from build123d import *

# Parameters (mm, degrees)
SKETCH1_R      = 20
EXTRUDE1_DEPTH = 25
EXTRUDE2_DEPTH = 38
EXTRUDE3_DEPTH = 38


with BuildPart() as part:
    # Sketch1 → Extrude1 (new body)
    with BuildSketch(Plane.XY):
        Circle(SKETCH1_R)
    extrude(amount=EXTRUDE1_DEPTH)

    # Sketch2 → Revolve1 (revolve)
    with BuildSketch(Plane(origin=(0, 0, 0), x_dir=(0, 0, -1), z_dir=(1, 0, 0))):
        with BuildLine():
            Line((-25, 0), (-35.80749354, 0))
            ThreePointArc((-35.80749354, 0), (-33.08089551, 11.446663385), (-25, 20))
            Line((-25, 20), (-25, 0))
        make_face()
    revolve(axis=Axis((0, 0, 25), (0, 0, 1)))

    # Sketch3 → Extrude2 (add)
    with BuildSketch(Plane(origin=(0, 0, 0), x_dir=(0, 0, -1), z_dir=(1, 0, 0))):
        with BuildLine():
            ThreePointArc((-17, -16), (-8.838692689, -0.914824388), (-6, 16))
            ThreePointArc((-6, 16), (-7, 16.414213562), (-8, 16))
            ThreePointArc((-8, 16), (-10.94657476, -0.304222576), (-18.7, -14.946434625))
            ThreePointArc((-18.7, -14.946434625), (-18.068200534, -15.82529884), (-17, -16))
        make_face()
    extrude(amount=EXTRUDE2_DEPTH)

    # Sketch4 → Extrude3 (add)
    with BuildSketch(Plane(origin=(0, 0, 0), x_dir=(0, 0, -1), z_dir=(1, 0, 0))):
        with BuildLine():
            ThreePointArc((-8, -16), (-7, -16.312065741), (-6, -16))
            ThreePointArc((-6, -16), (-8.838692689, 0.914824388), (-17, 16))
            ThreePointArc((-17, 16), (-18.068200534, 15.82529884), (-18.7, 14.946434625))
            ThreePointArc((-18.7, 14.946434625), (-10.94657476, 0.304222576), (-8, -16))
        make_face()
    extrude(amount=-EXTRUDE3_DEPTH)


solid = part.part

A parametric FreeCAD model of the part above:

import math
import FreeCAD as App
import Part
import Sketcher

doc = App.newDocument("Part")
params = doc.addObject("Spreadsheet::Sheet", "Params")
for row, (alias, value) in enumerate([
    ("sketch1_diameter", "40 mm"),
    ("pad1_length", "25 mm"),
    ("sketch2_width", "20 mm"),
    ("revolution_angle", "360 deg"),
    ("pad2_length", "38 mm"),
    ("pad3_length", "38 mm"),
], start=1):
    params.set(f"A{row}", alias)
    params.set(f"B{row}", "=" + value)
    params.setAlias(f"B{row}", alias)

body = doc.addObject("PartDesign::Body", "Body")

sketch1 = body.newObject("Sketcher::SketchObject", "Sketch")
sketch1.AttachmentSupport = (doc.getObject("XY_Plane"), [""])
sketch1.MapMode = "FlatFace"
sketch1.addGeometry(Part.Circle(App.Vector(0, 0, 0), App.Vector(0, 0, 1), 20), False)
sketch1.addConstraint([
    Sketcher.Constraint("Coincident", 0, 3, -1, 1),
    Sketcher.Constraint("Diameter", 0, 40.0),
])
sketch1.setExpression("Constraints[1]", "Params.sketch1_diameter")
pad1 = body.newObject("PartDesign::Pad", "Pad")
pad1.Profile = sketch1
pad1.setExpression("Length", "Params.pad1_length")

sketch2 = body.newObject("Sketcher::SketchObject", "Sketch001")
sketch2.AttachmentSupport = (doc.getObject("YZ_Plane"), [""])
sketch2.MapMode = "FlatFace"
sketch2.addGeometry([
    Part.LineSegment(App.Vector(0, 36, 0), App.Vector(0, 25, 0)),
    Part.LineSegment(App.Vector(0, 25, 0), App.Vector(20, 25, 0)),
    Part.ArcOfCircle(Part.Circle(App.Vector(1, 13, 0), App.Vector(0, 0, 1), 23), math.radians(32), math.radians(92)),
], False)
sketch2.addConstraint([
    Sketcher.Constraint("Coincident", 0, 2, 1, 1),
    Sketcher.Constraint("Coincident", 1, 2, 2, 1),
    Sketcher.Constraint("Coincident", 2, 2, 0, 1),
    Sketcher.Constraint("Vertical", 0),
    Sketcher.Constraint("Horizontal", 1),
    Sketcher.Constraint("PointOnObject", 0, 2, -2),
    Sketcher.Constraint("DistanceX", 1, 1, 1, 2, 20.0),
    Sketcher.Constraint("DistanceY", -1, 1, 0, 2, 25.0),
    Sketcher.Constraint("Radius", 2, 22.750511),
    Sketcher.Constraint("DistanceY", 0, 2, 0, 1, 10.807494),
])
sketch2.setExpression("Constraints[6]", "Params.sketch2_width")
revolution = body.newObject("PartDesign::Revolution", "Revolution")
revolution.Profile = sketch2
revolution.ReferenceAxis = (sketch2, ["V_Axis"])
revolution.setExpression("Angle", "Params.revolution_angle")

sketch3 = body.newObject("Sketcher::SketchObject", "Sketch002")
sketch3.AttachmentSupport = (doc.getObject("YZ_Plane"), [""])
sketch3.MapMode = "FlatFace"
sketch3.addGeometry([
    Part.ArcOfCircle(Part.Circle(App.Vector(16.1, 58.3, 0), App.Vector(0, 0, 1), 52.3), math.radians(-128), math.radians(-90)),
    Part.ArcOfCircle(Part.Circle(App.Vector(15, 7, 0), App.Vector(0, 0, 1), 1.4), math.radians(-45), math.radians(45)),
    Part.ArcOfCircle(Part.Circle(App.Vector(17.3, 62, 0), App.Vector(0, 0, 1), 54), math.radians(-127), math.radians(-91)),
    Part.ArcOfCircle(Part.Circle(App.Vector(-14.6, 17.3, 0), App.Vector(0, 0, 1), 1.4), math.radians(103), math.radians(193)),
], False)
sketch3.addConstraint([
    Sketcher.Constraint("Coincident", 0, 2, 1, 1),
    Sketcher.Constraint("Coincident", 1, 2, 2, 2),
    Sketcher.Constraint("Coincident", 2, 1, 3, 1),
    Sketcher.Constraint("Coincident", 3, 2, 0, 1),
    Sketcher.Constraint("Equal", 1, 3),
    Sketcher.Constraint("Vertical", 0, 2, 1, 2),
    Sketcher.Constraint("DistanceX", -1, 1, 1, 3, 15.0),
    Sketcher.Constraint("DistanceY", -1, 1, 1, 3, 7.0),
    Sketcher.Constraint("DistanceX", -1, 1, 0, 2, 16.0),
    Sketcher.Constraint("DistanceY", -1, 1, 0, 2, 6.0),
    Sketcher.Constraint("DistanceX", 3, 2, -1, 1, 16.0),
    Sketcher.Constraint("DistanceY", -1, 1, 3, 2, 17.0),
    Sketcher.Constraint("DistanceY", -1, 1, 2, 1, 18.7),
    Sketcher.Constraint("Radius", 0, 52.266064),
    Sketcher.Constraint("Radius", 2, 53.972924),
    Sketcher.Constraint("DistanceX", -1, 1, 2, 3, 17.332892),
])
pad2 = body.newObject("PartDesign::Pad", "Pad001")
pad2.Profile = sketch3
pad2.setExpression("Length", "Params.pad2_length")

sketch4 = body.newObject("Sketcher::SketchObject", "Sketch003")
sketch4.AttachmentSupport = (doc.getObject("YZ_Plane"), [""])
sketch4.MapMode = "FlatFace"
sketch4.addGeometry([
    Part.ArcOfCircle(Part.Circle(App.Vector(-14.6, 7, 0), App.Vector(0, 0, 1), 1.8), math.radians(145), math.radians(215)),
    Part.ArcOfCircle(Part.Circle(App.Vector(-16.1, 58.3, 0), App.Vector(0, 0, 1), 52.3), math.radians(-90), math.radians(-52)),
    Part.ArcOfCircle(Part.Circle(App.Vector(14.6, 17.3, 0), App.Vector(0, 0, 1), 1.4), math.radians(-13), math.radians(77)),
    Part.ArcOfCircle(Part.Circle(App.Vector(-17.3, 62, 0), App.Vector(0, 0, 1), 54), math.radians(-89), math.radians(-53)),
], False)
sketch4.addConstraint([
    Sketcher.Constraint("Coincident", 0, 2, 1, 1),
    Sketcher.Constraint("Coincident", 1, 2, 2, 1),
    Sketcher.Constraint("Coincident", 2, 2, 3, 2),
    Sketcher.Constraint("Coincident", 3, 1, 0, 1),
    Sketcher.Constraint("Vertical", 0, 2, 3, 1),
    Sketcher.Constraint("DistanceY", -1, 1, 0, 3, 7.0),
    Sketcher.Constraint("DistanceX", 0, 2, -1, 1, 16.0),
    Sketcher.Constraint("DistanceY", -1, 1, 0, 2, 6.0),
    Sketcher.Constraint("DistanceX", -1, 1, 1, 2, 16.0),
    Sketcher.Constraint("DistanceY", -1, 1, 1, 2, 17.0),
    Sketcher.Constraint("DistanceY", -1, 1, 2, 2, 18.7),
    Sketcher.Constraint("Radius", 0, 1.758259),
    Sketcher.Constraint("Radius", 1, 52.266064),
    Sketcher.Constraint("Radius", 2, 1.414214),
    Sketcher.Constraint("Radius", 3, 53.972924),
    Sketcher.Constraint("DistanceX", 3, 3, -1, 1, 17.332892),
])
pad3 = body.newObject("PartDesign::Pad", "Pad002")
pad3.Profile = sketch4
pad3.setExpression("Length", "Params.pad3_length")
pad3.Reversed = True

doc.recompute()
